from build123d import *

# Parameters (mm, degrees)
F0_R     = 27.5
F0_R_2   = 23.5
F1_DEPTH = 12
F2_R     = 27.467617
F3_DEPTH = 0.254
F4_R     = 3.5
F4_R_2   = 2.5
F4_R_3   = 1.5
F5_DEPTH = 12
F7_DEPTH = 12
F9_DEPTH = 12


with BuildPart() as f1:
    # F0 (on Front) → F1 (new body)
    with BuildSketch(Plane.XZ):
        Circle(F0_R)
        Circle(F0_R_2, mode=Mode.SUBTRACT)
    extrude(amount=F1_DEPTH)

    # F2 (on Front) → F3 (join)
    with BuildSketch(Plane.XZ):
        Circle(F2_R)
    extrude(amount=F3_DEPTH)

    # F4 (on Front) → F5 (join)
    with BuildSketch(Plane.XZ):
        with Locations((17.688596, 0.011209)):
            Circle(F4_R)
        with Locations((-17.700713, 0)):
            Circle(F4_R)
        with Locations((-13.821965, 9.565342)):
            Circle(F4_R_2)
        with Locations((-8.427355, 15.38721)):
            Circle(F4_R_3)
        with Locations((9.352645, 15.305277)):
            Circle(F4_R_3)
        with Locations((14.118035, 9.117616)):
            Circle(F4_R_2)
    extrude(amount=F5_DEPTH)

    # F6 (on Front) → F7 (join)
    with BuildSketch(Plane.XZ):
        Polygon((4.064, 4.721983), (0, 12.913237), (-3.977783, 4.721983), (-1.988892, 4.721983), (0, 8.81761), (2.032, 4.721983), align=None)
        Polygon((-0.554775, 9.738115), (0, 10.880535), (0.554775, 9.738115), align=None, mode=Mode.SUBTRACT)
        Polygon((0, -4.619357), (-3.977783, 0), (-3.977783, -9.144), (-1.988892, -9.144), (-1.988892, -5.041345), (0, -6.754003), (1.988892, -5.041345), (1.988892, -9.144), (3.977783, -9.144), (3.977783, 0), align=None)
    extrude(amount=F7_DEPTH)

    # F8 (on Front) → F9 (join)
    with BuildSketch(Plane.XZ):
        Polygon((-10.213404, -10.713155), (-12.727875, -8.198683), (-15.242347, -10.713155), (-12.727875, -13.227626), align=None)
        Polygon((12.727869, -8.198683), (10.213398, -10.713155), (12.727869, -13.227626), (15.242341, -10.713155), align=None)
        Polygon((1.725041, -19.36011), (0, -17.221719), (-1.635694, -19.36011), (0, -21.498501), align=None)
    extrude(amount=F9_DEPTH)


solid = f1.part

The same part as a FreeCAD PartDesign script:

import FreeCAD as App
import Part
import Sketcher

V = App.Vector
Q = App.Units.Quantity


def add_polygon(sketch, points):
    """Adds a closed chain of lines whose ends are joined by coincident constraints."""
    first, n = sketch.GeometryCount, len(points)
    for a, b in zip(points, points[1:] + points[:1]):
        sketch.addGeometry(Part.LineSegment(App.Vector(*a, 0), App.Vector(*b, 0)), False)
    for i in range(n):
        sketch.addConstraint(Sketcher.Constraint("Coincident", first + i, 2, first + (i + 1) % n, 1))

doc = App.newDocument("Part")
body = doc.addObject("PartDesign::Body", "Body")

# Sketch on XZ plane
sketch1 = doc.addObject("Sketcher::SketchObject", "Sketch")
body.addObject(sketch1)
sketch1.AttachmentSupport = (doc.XZ_Plane, [""])
sketch1.MapMode = "FlatFace"
sketch1.addGeometry([
    Part.Circle(V(0, 0, 0), V(0, 0, 1), 28),
    Part.Circle(V(0, 0, 0), V(0, 0, 1), 24),
], False)
sketch1.addConstraint([
    Sketcher.Constraint("Coincident", 0, 3, -1, 1),
    Sketcher.Constraint("Coincident", 1, 3, -1, 1),
    Sketcher.Constraint("Diameter", 0, 55.0),
    Sketcher.Constraint("Diameter", 1, 47.0),
])
pad1 = doc.addObject("PartDesign::Pad", "Pad")
body.addObject(pad1)
pad1.Profile = sketch1
pad1.Length = 12

# Sketch on XZ plane
sketch2 = doc.addObject("Sketcher::SketchObject", "Sketch001")
body.addObject(sketch2)
sketch2.AttachmentSupport = (doc.XZ_Plane, [""])
sketch2.MapMode = "FlatFace"
sketch2.addGeometry(Part.Circle(V(0, 0, 0), V(0, 0, 1), 27), False)
sketch2.addConstraint([
    Sketcher.Constraint("Coincident", 0, 3, -1, 1),
    Sketcher.Constraint("Diameter", 0, 54.935234),
])
pad2 = doc.addObject("PartDesign::Pad", "Pad001")
body.addObject(pad2)
pad2.Profile = sketch2
pad2.Length = Q("0.01 in")

# Sketch on XZ plane
sketch3 = doc.addObject("Sketcher::SketchObject", "Sketch002")
body.addObject(sketch3)
sketch3.AttachmentSupport = (doc.XZ_Plane, [""])
sketch3.MapMode = "FlatFace"
sketch3.addGeometry([
    Part.Circle(V(17.7, 0, 0), V(0, 0, 1), 3.5),  # 0
    Part.Circle(V(-17.7, 0, 0), V(0, 0, 1), 3.5),  # 1
    Part.Circle(V(-13.8, 9.6, 0), V(0, 0, 1), 2.5),  # 2
    Part.Circle(V(-8.4, 15.4, 0), V(0, 0, 1), 1.5),  # 3
    Part.Circle(V(9.4, 15.3, 0), V(0, 0, 1), 1.5),  # 4
    Part.Circle(V(14.1, 9.1, 0), V(0, 0, 1), 2.5),  # 5
], False)
sketch3.addConstraint([
    Sketcher.Constraint("Equal", 0, 1),
    Sketcher.Constraint("Equal", 3, 4),
    Sketcher.Constraint("Equal", 2, 5),
    Sketcher.Constraint("PointOnObject", 1, 3, -1),
    Sketcher.Constraint("DistanceX", 3, 3, 4, 3, Q("0.7 in")),
    Sketcher.Constraint("DistanceX", 2, 3, 5, 3, Q("1.1 in")),
    Sketcher.Constraint("Diameter", 0, 7.0),
    Sketcher.Constraint("Diameter", 2, 5.0),
    Sketcher.Constraint("Diameter", 3, 3.0),
    Sketcher.Constraint("DistanceY", 0, 3, 3, 3, 15.376001),
    Sketcher.Constraint("DistanceY", -1, 1, 0, 3, 0.011209),
    Sketcher.Constraint("DistanceY", -1, 1, 2, 3, 9.565342),
    Sketcher.Constraint("DistanceX", 1, 3, 0, 3, 35.389309),
    Sketcher.Constraint("DistanceX", 2, 3, 0, 3, 31.510561),
    Sketcher.Constraint("DistanceX", 2, 3, 3, 3, 5.39461),
    Sketcher.Constraint("DistanceY", 0, 3, 4, 3, 15.294068),
    Sketcher.Constraint("DistanceY", 5, 3, 4, 3, 6.187661),
    Sketcher.Constraint("DistanceX", -1, 1, 0, 3, 17.688596),
])
pad3 = doc.addObject("PartDesign::Pad", "Pad002")
body.addObject(pad3)
pad3.Profile = sketch3
pad3.Length = 12

# Sketch on XZ plane
sketch4 = doc.addObject("Sketcher::SketchObject", "Sketch003")
body.addObject(sketch4)
sketch4.AttachmentSupport = (doc.XZ_Plane, [""])
sketch4.MapMode = "FlatFace"
add_polygon(sketch4, [(4.1, 4.7), (0, 12.9), (-4, 4.7), (-2, 4.7), (0, 8.8), (2, 4.7)])  # lines 0-5
add_polygon(sketch4, [(0.6, 9.7), (-0.6, 9.7), (0, 10.9)])  # lines 6-8
add_polygon(sketch4, [(0, -4.6), (-4, 0), (-4, -9.1), (-2, -9.1), (-2, -5), (0, -6.8), (2, -5), (2, -9.1), (4, -9.1), (4, 0)])  # lines 9-18
sketch4.addConstraint([
    Sketcher.Constraint("Horizontal", 2),
    Sketcher.Constraint("Horizontal", 5),
    Sketcher.Constraint("Horizontal", 6),
    Sketcher.Constraint("Vertical", 10),
    Sketcher.Constraint("Horizontal", 11),
    Sketcher.Constraint("Vertical", 12),
    Sketcher.Constraint("Vertical", 15),
    Sketcher.Constraint("Horizontal", 16),
    Sketcher.Constraint("Vertical", 17),
    Sketcher.Constraint("Symmetric", 9, 2, 17, 2, -1, 1),
    Sketcher.Constraint("Symmetric", 12, 2, 14, 2, -2),
    Sketcher.Constraint("PointOnObject", 0, 2, -2),
    Sketcher.Constraint("PointOnObject", 3, 2, -2),
    Sketcher.Constraint("PointOnObject", 7, 2, -2),
    Sketcher.Constraint("PointOnObject", 9, 2, -1),
    Sketcher.Constraint("PointOnObject", 13, 2, -2),
    Sketcher.Constraint("PointOnObject", 18, 2, -2),
    Sketcher.Constraint("Parallel", 1, 3),
    Sketcher.Constraint("Parallel", 0, 4),
    Sketcher.Constraint("Parallel", 3, 7),
    Sketcher.Constraint("Perpendicular", 9, 14),
    Sketcher.Constraint("Horizontal", 2, 2, 4, 2),
    Sketcher.Constraint("Horizontal", 11, 2, 15, 2),
    Sketcher.Constraint("Vertical", 1, 2, 9, 2),
    Sketcher.Constraint("Vertical", 2, 2, 11, 2),
    Sketcher.Constraint("Equal", 7, 8),
    Sketcher.Constraint("DistanceX", 5, 1, 5, 2, Q("0.08 in")),
    Sketcher.Constraint("DistanceY", 10, 2, 10, 1, Q("0.36 in")),
    Sketcher.Constraint("Distance", 0, Q("0.36 in")),
    Sketcher.Constraint("Distance", 4, Q("0.18 in")),
    Sketcher.Constraint("Distance", 7, Q("0.05 in")),
    Sketcher.Constraint("Distance", 9, Q("0.24 in")),
    Sketcher.Constraint("DistanceX", 2, 1, 2, 2, 1.988891),
    Sketcher.Constraint("DistanceY", 12, 1, 12, 2, 4.102655),
    Sketcher.Constraint("DistanceY", -1, 1, 3, 2, 8.81761),
    Sketcher.Constraint("DistanceY", 6, 2, 0, 2, 3.175122),
])
pad4 = doc.addObject("PartDesign::Pad", "Pad003")
body.addObject(pad4)
pad4.Profile = sketch4
pad4.Length = 12

# Sketch on XZ plane
sketch5 = doc.addObject("Sketcher::SketchObject", "Sketch004")
body.addObject(sketch5)
sketch5.AttachmentSupport = (doc.XZ_Plane, [""])
sketch5.MapMode = "FlatFace"
add_polygon(sketch5, [(-10.2, -10.7), (-12.7, -8.2), (-15.2, -10.7), (-12.7, -13.2)])  # lines 0-3
add_polygon(sketch5, [(12.7, -8.2), (10.2, -10.7), (12.7, -13.2), (15.2, -10.7)])  # lines 4-7
add_polygon(sketch5, [(1.7, -19.4), (0, -17.2), (-1.6, -19.4), (0, -21.5)])  # lines 8-11
sketch5.addConstraint([
    Sketcher.Constraint("Symmetric", 3, 2, 4, 2, -2),
    Sketcher.Constraint("Symmetric", 2, 2, 5, 2, -2),
    Sketcher.Constraint("Symmetric", 1, 2, 6, 2, -2),
    Sketcher.Constraint("Symmetric", 0, 2, 7, 2, -2),
    Sketcher.Constraint("PointOnObject", 8, 2, -2),
    Sketcher.Constraint("PointOnObject", 10, 2, -2),
    Sketcher.Constraint("Perpendicular", 0, 1),
    Sketcher.Constraint("Perpendicular", 1, 2),
    Sketcher.Constraint("Perpendicular", 2, 3),
    Sketcher.Constraint("Parallel", 3, 4),
    Sketcher.Constraint("Horizontal", 1, 2, 3, 2),
    Sketcher.Constraint("Horizontal", 9, 2, 11, 2),
    Sketcher.Constraint("Equal", 9, 10),
    Sketcher.Constraint("Distance", 0, Q("0.14 in")),
    Sketcher.Constraint("DistanceX", 2, 2, 9, 2, Q("0.4367 in")),
    Sketcher.Constraint("DistanceY", 10, 2, -1, 1, 21.498501),
    Sketcher.Constraint("Distance", 8, 2.74745),
    Sketcher.Constraint("Distance", 9, 2.69225),
    Sketcher.Constraint("DistanceX", -1, 1, 5, 2, 12.727869),
    Sketcher.Constraint("DistanceY", 0, 2, -1, 1, 8.198683),
])
pad5 = doc.addObject("PartDesign::Pad", "Pad004")
body.addObject(pad5)
pad5.Profile = sketch5
pad5.Length = 12

doc.recompute()
